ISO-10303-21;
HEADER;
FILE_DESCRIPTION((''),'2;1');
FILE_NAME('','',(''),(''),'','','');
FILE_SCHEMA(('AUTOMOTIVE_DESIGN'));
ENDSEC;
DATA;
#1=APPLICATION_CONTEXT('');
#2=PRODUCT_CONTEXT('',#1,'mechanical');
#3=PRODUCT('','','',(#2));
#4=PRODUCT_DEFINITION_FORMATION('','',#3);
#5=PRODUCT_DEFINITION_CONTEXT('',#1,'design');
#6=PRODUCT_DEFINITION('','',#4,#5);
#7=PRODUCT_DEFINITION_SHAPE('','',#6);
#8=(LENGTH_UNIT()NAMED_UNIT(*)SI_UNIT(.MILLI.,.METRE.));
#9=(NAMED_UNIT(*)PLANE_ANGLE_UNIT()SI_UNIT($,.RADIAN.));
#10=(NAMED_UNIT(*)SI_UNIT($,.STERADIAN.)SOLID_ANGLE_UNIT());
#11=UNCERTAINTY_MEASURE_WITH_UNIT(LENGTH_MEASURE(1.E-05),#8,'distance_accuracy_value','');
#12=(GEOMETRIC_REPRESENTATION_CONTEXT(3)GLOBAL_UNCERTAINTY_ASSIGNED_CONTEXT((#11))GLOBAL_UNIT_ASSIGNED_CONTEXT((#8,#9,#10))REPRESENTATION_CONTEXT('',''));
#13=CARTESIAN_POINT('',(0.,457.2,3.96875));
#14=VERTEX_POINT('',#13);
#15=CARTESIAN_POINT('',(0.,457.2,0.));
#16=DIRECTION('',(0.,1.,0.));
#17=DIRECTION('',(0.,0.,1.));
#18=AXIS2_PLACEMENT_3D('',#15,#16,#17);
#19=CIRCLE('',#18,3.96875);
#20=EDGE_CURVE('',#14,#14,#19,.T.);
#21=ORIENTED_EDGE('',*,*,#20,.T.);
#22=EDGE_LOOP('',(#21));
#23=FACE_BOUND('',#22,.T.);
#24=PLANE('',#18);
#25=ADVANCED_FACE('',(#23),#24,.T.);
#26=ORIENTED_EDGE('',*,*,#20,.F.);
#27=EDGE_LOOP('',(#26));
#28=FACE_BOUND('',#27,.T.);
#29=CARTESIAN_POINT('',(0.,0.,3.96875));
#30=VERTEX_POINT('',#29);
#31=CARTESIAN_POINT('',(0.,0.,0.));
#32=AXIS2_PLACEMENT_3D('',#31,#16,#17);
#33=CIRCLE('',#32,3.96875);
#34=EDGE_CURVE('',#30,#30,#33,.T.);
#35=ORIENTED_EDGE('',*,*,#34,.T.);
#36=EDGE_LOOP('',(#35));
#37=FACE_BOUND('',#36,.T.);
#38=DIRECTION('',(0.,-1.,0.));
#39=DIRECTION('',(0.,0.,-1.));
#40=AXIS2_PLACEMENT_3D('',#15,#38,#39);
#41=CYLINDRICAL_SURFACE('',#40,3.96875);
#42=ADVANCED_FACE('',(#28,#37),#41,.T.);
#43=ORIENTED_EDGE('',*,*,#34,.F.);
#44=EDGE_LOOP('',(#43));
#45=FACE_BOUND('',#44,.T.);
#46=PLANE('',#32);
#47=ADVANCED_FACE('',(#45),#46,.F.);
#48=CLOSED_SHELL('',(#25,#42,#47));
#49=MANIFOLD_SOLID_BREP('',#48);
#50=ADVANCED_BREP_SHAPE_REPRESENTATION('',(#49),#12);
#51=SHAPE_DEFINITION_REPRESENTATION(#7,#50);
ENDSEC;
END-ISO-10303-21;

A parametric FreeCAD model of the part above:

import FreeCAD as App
import Part
import Sketcher
from FreeCAD import Vector
Q = App.Units.Quantity

doc = App.newDocument("Part")
params = doc.addObject("Spreadsheet::Sheet", "Params")
for row, (alias, value) in enumerate([
    ("sketch1_diameter", "0.3125 in"),
    ("pad1_length", "18 in"),
], start=1):
    params.set(f"A{row}", alias)
    params.set(f"B{row}", "=" + value)
    params.setAlias(f"B{row}", alias)

body = doc.addObject("PartDesign::Body", "Body")

sketch1 = body.newObject("Sketcher::SketchObject", "Sketch")
sketch1.AttachmentSupport = (doc.getObject("XZ_Plane"), [""])
sketch1.MapMode = "FlatFace"
sketch1.addGeometry(Part.Circle(Vector(0, 0, 0), Vector(0, 0, 1), 4), False)
sketch1.addConstraint([
    Sketcher.Constraint("Coincident", 0, 3, -1, 1),
    Sketcher.Constraint("Diameter", 0, Q("0.3125 in")),
])
sketch1.setExpression("Constraints[1]", "Params.sketch1_diameter")
pad1 = body.newObject("PartDesign::Pad", "Pad")
pad1.Profile = sketch1
pad1.setExpression("Length", "Params.pad1_length")
pad1.Reversed = True

doc.recompute()
